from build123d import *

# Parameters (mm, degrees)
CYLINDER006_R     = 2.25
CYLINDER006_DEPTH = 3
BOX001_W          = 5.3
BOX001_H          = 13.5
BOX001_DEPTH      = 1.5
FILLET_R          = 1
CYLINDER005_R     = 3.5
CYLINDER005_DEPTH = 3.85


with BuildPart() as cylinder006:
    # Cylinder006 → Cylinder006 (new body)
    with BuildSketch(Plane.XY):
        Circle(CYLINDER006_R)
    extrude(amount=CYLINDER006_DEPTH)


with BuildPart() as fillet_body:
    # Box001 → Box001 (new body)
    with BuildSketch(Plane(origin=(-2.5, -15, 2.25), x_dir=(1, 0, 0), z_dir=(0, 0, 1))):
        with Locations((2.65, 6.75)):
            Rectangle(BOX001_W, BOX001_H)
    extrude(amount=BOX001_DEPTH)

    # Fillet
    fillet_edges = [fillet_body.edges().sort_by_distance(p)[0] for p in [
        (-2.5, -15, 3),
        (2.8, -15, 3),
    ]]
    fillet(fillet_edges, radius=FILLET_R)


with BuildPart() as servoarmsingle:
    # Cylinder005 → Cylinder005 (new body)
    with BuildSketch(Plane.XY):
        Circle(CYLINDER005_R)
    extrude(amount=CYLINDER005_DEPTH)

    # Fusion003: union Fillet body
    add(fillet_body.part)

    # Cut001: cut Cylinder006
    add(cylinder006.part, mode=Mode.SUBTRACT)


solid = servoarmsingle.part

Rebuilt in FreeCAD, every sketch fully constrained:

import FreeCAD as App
import Part
import Sketcher
from FreeCAD import Vector


def edges_at(feature, points):
    """Names of the edges that pass closest to the given points."""
    edges = feature.Shape.Edges
    near = lambda p: min(range(len(edges)), key=lambda i: edges[i].distToShape(Part.Vertex(*p))[0])
    return sorted({f"Edge{near(p) + 1}" for p in points})

doc = App.newDocument("Part")
params = doc.addObject("Spreadsheet::Sheet", "Params")
for row, (alias, value) in enumerate([
    ("sketch1_diameter", "4.5 mm"),
    ("pad1_length", "3 mm"),
    ("sketch2_width", "5.3 mm"),
    ("sketch2_height", "13.5 mm"),
    ("pad2_length", "1.5 mm"),
    ("fillet_radius", "1 mm"),
    ("sketch3_diameter", "7 mm"),
    ("pad3_length", "3.85 mm"),
], start=1):
    params.set(f"A{row}", alias)
    params.set(f"B{row}", "=" + value)
    params.setAlias(f"B{row}", alias)

body = doc.addObject("PartDesign::Body", "Body")

# Sketch on XY plane
sketch1 = body.newObject("Sketcher::SketchObject", "Sketch")
sketch1.AttachmentSupport = (doc.getObject("XY_Plane"), [""])
sketch1.MapMode = "FlatFace"
sketch1.addGeometry(Part.Circle(Vector(0, 0, 0), Vector(0, 0, 1), 2.2), False)
sketch1.addConstraint([
    Sketcher.Constraint("Coincident", 0, 3, -1, 1),
    Sketcher.Constraint("Diameter", 0, 4.5),
])
sketch1.setExpression("Constraints[1]", "Params.sketch1_diameter")
pad1 = body.newObject("PartDesign::Pad", "Pad")
pad1.Profile = sketch1
pad1.setExpression("Length", "Params.pad1_length")
body2 = doc.addObject("PartDesign::Body", "Body001")

# Sketch on XY plane
sketch2 = body2.newObject("Sketcher::SketchObject", "Sketch001")
sketch2.AttachmentSupport = (doc.getObject("XY_Plane001"), [""])
sketch2.MapMode = "FlatFace"
sketch2.AttachmentOffset = App.Placement(Vector(0, 0, 2.25), App.Rotation())
sketch2.addGeometry([
    Part.LineSegment(Vector(-2, -2, 0), Vector(-2, -15, 0)),
    Part.LineSegment(Vector(-2, -15, 0), Vector(3, -15, 0)),
    Part.LineSegment(Vector(3, -15, 0), Vector(3, -2, 0)),
    Part.LineSegment(Vector(3, -2, 0), Vector(-2, -2, 0)),
], False)
sketch2.addConstraint([
    Sketcher.Constraint("Coincident", 0, 2, 1, 1),
    Sketcher.Constraint("Coincident", 1, 2, 2, 1),
    Sketcher.Constraint("Coincident", 2, 2, 3, 1),
    Sketcher.Constraint("Coincident", 3, 2, 0, 1),
    Sketcher.Constraint("Vertical", 0),
    Sketcher.Constraint("Horizontal", 1),
    Sketcher.Constraint("Vertical", 2),
    Sketcher.Constraint("Horizontal", 3),
    Sketcher.Constraint("DistanceX", 1, 1, 1, 2, 5.3),
    Sketcher.Constraint("DistanceY", 0, 2, 0, 1, 13.5),
    Sketcher.Constraint("DistanceY", 0, 2, -1, 1, 15.0),
    Sketcher.Constraint("DistanceX", 0, 2, -1, 1, 2.5),
])
sketch2.setExpression("Constraints[8]", "Params.sketch2_width")
sketch2.setExpression("Constraints[9]", "Params.sketch2_height")
pad2 = body2.newObject("PartDesign::Pad", "Pad001")
pad2.Profile = sketch2
pad2.setExpression("Length", "Params.pad2_length")
doc.recompute()

fillet = body2.newObject("PartDesign::Fillet", "Fillet")
fillet.Base = (pad2, edges_at(pad2, [(-2.5, -15, 3), (2.8, -15, 3)]))
fillet.setExpression("Radius", "Params.fillet_radius")
body3 = doc.addObject("PartDesign::Body", "Body002")

# Sketch on XY plane
sketch3 = body3.newObject("Sketcher::SketchObject", "Sketch002")
sketch3.AttachmentSupport = (doc.getObject("XY_Plane002"), [""])
sketch3.MapMode = "FlatFace"
sketch3.addGeometry(Part.Circle(Vector(0, 0, 0), Vector(0, 0, 1), 3.5), False)
sketch3.addConstraint([
    Sketcher.Constraint("Coincident", 0, 3, -1, 1),
    Sketcher.Constraint("Diameter", 0, 7.0),
])
sketch3.setExpression("Constraints[1]", "Params.sketch3_diameter")
pad3 = body3.newObject("PartDesign::Pad", "Pad002")
pad3.Profile = sketch3
pad3.setExpression("Length", "Params.pad3_length")
doc.recompute()

boolean = body3.newObject("PartDesign::Boolean", "Boolean")
boolean.Type = "Fuse"
boolean.addObjects([body2])
doc.recompute()

boolean2 = body3.newObject("PartDesign::Boolean", "Boolean001")
boolean2.Type = "Cut"
boolean2.addObjects([body])

doc.recompute()
